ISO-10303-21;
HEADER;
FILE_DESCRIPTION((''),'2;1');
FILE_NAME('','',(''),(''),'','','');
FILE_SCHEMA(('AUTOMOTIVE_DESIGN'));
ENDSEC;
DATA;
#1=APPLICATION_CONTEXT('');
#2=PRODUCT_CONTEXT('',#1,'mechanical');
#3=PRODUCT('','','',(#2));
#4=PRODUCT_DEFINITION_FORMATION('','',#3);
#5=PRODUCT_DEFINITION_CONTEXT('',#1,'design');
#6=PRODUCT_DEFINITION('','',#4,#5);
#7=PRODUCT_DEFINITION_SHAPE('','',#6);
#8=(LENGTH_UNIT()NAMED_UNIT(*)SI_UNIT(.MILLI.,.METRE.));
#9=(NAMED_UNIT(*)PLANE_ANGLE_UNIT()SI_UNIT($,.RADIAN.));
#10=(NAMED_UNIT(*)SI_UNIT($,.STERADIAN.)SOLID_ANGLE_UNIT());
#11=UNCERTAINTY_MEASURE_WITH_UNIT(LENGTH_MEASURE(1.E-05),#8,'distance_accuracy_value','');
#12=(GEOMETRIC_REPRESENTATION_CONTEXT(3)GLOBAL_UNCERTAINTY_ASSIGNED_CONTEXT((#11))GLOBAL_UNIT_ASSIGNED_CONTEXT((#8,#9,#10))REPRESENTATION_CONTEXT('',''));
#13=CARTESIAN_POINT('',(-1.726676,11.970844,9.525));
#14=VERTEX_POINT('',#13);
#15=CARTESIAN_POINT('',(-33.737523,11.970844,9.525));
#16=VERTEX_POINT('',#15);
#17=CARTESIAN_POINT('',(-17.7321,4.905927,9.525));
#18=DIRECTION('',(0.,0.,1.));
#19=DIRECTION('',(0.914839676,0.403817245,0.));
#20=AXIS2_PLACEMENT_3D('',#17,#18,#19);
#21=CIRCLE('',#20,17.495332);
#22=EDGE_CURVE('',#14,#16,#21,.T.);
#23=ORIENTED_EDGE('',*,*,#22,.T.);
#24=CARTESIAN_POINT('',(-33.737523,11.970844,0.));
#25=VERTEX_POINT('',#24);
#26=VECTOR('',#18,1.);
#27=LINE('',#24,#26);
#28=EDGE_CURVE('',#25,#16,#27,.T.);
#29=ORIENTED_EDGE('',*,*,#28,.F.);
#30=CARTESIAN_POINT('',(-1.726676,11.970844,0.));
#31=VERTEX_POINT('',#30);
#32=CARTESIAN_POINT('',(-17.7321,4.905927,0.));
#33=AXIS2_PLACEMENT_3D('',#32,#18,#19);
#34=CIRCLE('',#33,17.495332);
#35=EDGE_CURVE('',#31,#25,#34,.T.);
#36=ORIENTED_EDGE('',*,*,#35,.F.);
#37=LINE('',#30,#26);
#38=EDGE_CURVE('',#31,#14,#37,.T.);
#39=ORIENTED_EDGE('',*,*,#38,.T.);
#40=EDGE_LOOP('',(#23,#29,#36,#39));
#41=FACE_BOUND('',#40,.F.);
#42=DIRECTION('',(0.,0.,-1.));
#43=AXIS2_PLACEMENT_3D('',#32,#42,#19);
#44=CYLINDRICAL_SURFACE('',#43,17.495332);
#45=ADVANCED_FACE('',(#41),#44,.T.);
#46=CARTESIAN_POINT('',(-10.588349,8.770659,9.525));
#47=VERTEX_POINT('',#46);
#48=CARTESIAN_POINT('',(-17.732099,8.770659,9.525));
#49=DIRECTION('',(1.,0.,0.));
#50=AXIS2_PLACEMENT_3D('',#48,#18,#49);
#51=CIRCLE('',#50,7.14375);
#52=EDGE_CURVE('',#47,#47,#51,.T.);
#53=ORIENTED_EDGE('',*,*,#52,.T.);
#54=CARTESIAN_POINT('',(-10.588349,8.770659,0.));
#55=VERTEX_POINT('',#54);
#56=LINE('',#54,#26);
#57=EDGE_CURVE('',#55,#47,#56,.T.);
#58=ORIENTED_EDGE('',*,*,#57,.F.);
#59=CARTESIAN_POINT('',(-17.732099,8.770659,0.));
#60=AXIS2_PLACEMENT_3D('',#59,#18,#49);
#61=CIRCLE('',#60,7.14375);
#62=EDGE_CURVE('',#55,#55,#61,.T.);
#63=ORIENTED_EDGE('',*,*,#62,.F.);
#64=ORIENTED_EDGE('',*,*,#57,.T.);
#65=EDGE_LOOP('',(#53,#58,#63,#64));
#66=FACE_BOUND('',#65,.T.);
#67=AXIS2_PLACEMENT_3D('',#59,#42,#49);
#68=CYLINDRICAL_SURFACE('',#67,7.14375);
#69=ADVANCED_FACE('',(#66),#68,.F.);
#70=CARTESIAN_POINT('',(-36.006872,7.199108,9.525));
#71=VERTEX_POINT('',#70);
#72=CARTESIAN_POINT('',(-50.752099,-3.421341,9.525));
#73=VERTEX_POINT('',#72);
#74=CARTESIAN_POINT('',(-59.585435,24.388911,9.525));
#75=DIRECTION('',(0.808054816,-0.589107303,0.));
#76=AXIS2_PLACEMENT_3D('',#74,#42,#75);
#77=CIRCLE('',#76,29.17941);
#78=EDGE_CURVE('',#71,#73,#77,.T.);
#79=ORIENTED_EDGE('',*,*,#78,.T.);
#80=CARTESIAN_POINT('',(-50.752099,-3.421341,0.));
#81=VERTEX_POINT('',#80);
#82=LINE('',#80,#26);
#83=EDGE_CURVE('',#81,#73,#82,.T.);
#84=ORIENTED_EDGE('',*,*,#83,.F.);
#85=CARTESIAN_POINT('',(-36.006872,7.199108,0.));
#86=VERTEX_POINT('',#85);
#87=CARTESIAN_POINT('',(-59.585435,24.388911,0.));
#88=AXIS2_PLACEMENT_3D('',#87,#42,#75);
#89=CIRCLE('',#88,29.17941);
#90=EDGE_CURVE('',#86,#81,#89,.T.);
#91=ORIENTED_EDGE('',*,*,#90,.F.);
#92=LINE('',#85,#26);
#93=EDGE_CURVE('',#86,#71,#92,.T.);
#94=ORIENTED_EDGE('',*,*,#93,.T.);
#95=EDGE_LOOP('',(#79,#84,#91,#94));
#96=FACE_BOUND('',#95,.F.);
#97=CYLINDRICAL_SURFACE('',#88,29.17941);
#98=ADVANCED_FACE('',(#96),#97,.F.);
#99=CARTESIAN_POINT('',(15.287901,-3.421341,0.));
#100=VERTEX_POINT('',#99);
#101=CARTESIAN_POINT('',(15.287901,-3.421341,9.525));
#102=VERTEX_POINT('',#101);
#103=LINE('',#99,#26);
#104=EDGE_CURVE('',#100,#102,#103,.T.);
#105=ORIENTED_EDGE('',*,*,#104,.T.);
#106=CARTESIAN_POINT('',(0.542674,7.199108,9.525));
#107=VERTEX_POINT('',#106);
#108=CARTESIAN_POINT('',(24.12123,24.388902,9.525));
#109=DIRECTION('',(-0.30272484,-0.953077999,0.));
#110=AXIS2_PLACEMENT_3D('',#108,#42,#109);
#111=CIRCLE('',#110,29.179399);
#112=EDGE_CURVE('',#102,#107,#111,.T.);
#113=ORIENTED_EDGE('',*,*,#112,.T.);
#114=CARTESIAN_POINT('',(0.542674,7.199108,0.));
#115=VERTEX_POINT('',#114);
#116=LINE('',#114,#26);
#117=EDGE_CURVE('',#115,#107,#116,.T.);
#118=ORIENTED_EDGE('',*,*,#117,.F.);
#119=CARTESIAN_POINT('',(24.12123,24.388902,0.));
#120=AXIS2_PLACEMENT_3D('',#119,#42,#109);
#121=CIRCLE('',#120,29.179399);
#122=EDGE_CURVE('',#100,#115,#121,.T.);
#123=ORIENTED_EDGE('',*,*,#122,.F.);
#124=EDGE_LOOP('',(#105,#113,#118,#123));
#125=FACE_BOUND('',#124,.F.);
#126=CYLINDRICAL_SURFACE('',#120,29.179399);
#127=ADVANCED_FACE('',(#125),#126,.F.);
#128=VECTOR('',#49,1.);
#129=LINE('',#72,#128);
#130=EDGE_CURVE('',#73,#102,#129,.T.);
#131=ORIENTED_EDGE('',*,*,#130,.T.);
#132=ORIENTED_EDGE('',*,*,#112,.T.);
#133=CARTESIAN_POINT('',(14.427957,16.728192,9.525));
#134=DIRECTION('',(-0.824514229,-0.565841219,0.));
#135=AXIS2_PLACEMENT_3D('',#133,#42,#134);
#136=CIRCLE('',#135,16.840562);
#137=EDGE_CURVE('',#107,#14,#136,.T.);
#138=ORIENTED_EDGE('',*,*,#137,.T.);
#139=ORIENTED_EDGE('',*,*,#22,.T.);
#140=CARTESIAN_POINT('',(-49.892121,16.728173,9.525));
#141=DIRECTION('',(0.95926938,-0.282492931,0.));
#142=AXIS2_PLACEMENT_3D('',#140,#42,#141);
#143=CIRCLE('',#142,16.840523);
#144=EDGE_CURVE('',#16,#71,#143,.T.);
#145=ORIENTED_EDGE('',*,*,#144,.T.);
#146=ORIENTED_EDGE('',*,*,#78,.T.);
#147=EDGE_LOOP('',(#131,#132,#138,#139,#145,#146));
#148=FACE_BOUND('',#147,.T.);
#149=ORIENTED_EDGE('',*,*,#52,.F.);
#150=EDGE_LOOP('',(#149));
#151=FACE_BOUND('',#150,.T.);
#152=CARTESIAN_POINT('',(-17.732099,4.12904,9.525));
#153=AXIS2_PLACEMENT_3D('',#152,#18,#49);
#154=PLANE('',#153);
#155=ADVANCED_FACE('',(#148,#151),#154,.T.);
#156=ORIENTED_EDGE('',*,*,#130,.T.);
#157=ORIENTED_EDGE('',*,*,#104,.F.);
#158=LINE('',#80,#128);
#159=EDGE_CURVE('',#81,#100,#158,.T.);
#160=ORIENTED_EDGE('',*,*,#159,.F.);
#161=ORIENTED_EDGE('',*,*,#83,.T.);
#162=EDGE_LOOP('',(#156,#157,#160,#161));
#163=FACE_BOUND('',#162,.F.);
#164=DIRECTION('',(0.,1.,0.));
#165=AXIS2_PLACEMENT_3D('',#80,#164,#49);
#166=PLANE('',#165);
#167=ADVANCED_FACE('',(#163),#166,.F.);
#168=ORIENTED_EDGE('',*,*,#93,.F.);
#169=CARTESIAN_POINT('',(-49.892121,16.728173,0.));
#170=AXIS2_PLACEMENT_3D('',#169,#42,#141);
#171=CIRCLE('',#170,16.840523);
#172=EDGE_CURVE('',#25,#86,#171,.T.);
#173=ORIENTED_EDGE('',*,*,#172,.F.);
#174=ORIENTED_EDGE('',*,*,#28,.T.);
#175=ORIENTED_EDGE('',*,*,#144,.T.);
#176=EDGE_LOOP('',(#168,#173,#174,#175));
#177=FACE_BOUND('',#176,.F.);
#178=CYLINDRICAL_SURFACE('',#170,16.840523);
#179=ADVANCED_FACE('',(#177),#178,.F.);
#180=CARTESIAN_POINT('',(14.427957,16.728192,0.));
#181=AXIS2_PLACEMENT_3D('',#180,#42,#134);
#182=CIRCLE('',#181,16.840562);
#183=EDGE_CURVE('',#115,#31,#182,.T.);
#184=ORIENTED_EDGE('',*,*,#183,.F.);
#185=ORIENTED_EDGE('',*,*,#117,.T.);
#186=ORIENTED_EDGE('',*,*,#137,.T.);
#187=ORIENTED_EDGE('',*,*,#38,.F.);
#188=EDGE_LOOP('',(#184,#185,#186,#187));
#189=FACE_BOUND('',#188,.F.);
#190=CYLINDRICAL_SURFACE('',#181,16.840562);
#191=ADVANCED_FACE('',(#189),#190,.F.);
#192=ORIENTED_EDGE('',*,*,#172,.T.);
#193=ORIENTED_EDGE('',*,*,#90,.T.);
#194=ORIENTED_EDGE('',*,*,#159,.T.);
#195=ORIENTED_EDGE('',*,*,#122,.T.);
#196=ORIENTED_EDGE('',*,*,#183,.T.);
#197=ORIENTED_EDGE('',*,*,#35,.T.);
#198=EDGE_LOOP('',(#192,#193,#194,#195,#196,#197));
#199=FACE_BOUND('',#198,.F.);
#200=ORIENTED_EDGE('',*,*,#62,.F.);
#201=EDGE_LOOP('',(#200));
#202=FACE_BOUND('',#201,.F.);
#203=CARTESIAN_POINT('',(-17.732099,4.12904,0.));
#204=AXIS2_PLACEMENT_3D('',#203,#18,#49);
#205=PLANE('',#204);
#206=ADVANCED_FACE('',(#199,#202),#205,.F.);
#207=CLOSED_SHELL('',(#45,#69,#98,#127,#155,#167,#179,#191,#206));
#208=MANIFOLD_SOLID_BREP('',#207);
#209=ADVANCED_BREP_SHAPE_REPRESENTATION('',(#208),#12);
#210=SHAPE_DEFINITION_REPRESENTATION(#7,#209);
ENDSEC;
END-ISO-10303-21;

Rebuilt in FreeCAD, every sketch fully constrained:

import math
import FreeCAD as App
import Part
import Sketcher

V = App.Vector
Q = App.Units.Quantity

doc = App.newDocument("Part")
body = doc.addObject("PartDesign::Body", "Body")

# Sketch on XY plane
sketch1 = body.newObject("Sketcher::SketchObject", "Sketch")
sketch1.AttachmentSupport = (doc.getObject("XY_Plane"), [""])
sketch1.MapMode = "FlatFace"
sketch1.addGeometry([
    Part.ArcOfCircle(Part.Circle(V(24.12123, 24.388902, 0), V(0, 0, 1), 29.179399), math.radians(-143.906322), math.radians(-107.621337)),  # 0
    Part.ArcOfCircle(Part.Circle(V(14.427957, 16.728192, 0), V(0, 0, 1), 16.840562), math.radians(-163.590923), math.radians(-145.539273)),  # 1
    Part.ArcOfCircle(Part.Circle(V(-17.7321, 4.905927, 0), V(0, 0, 1), 17.495332), math.radians(23.817031), math.radians(156.182969)),  # 2
    Part.ArcOfCircle(Part.Circle(V(-49.892121, 16.728173, 0), V(0, 0, 1), 16.840523), math.radians(-34.460738), math.radians(-16.409047)),  # 3
    Part.ArcOfCircle(Part.Circle(V(-59.585435, 24.388911, 0), V(0, 0, 1), 29.17941), math.radians(-72.378656), math.radians(-36.093685)),  # 4
    Part.LineSegment(V(-50.752099, -3.421341, 0), V(15.287901, -3.421341, 0)),  # 5
    Part.Circle(V(-17.732099, 8.770659, 0), V(0, 0, 1), 7.14375),  # 6
], False)
sketch1.addConstraint([
    Sketcher.Constraint("Coincident", 0, 1, 1, 2),
    Sketcher.Constraint("Coincident", 1, 1, 2, 1),
    Sketcher.Constraint("Coincident", 2, 2, 3, 2),
    Sketcher.Constraint("Coincident", 3, 1, 4, 2),
    Sketcher.Constraint("Coincident", 4, 1, 5, 1),
    Sketcher.Constraint("Coincident", 5, 2, 0, 2),
    Sketcher.Constraint("Horizontal", 5),
    Sketcher.Constraint("Diameter", 6, Q("0.5625 in")),
    Sketcher.Constraint("DistanceX", 5, 1, 5, 2, Q("2.6 in")),
    Sketcher.Constraint("DistanceX", 4, 1, 2, 3, Q("1.3 in")),
    Sketcher.Constraint("Radius", 0, Q("29.179399 mm")),
    Sketcher.Constraint("Radius", 2, Q("17.495332 mm")),
    Sketcher.Constraint("Radius", 4, Q("29.17941 mm")),
    Sketcher.Constraint("Radius", 1, Q("16.840562 mm")),
    Sketcher.Constraint("Radius", 3, Q("16.840523 mm")),
    Sketcher.Constraint("DistanceY", 1, 1, 0, 3, Q("0.4888999 in")),
    Sketcher.Constraint("DistanceY", -1, 1, 0, 3, Q("24.388902 mm")),
    Sketcher.Constraint("DistanceX", 2, 3, -1, 1, Q("17.7321 mm")),
    Sketcher.Constraint("DistanceX", 6, 3, -1, 1, Q("17.732099 mm")),
    Sketcher.Constraint("DistanceX", 3, 3, 2, 2, Q("16.154598 mm")),
    Sketcher.Constraint("DistanceX", -1, 1, 0, 3, Q("24.12123 mm")),
    Sketcher.Constraint("DistanceX", 3, 3, -1, 1, Q("49.892121 mm")),
    Sketcher.Constraint("DistanceY", -1, 1, 4, 3, Q("24.388911 mm")),
    Sketcher.Constraint("DistanceY", -1, 1, 6, 3, Q("8.770659 mm")),
    Sketcher.Constraint("DistanceY", -1, 1, 3, 1, Q("7.199108 mm")),
    Sketcher.Constraint("DistanceY", 1, 3, 0, 3, Q("7.66071 mm")),
])
pad1 = body.newObject("PartDesign::Pad", "Pad")
pad1.Profile = sketch1
pad1.Length = Q("0.375 in")

doc.recompute()
